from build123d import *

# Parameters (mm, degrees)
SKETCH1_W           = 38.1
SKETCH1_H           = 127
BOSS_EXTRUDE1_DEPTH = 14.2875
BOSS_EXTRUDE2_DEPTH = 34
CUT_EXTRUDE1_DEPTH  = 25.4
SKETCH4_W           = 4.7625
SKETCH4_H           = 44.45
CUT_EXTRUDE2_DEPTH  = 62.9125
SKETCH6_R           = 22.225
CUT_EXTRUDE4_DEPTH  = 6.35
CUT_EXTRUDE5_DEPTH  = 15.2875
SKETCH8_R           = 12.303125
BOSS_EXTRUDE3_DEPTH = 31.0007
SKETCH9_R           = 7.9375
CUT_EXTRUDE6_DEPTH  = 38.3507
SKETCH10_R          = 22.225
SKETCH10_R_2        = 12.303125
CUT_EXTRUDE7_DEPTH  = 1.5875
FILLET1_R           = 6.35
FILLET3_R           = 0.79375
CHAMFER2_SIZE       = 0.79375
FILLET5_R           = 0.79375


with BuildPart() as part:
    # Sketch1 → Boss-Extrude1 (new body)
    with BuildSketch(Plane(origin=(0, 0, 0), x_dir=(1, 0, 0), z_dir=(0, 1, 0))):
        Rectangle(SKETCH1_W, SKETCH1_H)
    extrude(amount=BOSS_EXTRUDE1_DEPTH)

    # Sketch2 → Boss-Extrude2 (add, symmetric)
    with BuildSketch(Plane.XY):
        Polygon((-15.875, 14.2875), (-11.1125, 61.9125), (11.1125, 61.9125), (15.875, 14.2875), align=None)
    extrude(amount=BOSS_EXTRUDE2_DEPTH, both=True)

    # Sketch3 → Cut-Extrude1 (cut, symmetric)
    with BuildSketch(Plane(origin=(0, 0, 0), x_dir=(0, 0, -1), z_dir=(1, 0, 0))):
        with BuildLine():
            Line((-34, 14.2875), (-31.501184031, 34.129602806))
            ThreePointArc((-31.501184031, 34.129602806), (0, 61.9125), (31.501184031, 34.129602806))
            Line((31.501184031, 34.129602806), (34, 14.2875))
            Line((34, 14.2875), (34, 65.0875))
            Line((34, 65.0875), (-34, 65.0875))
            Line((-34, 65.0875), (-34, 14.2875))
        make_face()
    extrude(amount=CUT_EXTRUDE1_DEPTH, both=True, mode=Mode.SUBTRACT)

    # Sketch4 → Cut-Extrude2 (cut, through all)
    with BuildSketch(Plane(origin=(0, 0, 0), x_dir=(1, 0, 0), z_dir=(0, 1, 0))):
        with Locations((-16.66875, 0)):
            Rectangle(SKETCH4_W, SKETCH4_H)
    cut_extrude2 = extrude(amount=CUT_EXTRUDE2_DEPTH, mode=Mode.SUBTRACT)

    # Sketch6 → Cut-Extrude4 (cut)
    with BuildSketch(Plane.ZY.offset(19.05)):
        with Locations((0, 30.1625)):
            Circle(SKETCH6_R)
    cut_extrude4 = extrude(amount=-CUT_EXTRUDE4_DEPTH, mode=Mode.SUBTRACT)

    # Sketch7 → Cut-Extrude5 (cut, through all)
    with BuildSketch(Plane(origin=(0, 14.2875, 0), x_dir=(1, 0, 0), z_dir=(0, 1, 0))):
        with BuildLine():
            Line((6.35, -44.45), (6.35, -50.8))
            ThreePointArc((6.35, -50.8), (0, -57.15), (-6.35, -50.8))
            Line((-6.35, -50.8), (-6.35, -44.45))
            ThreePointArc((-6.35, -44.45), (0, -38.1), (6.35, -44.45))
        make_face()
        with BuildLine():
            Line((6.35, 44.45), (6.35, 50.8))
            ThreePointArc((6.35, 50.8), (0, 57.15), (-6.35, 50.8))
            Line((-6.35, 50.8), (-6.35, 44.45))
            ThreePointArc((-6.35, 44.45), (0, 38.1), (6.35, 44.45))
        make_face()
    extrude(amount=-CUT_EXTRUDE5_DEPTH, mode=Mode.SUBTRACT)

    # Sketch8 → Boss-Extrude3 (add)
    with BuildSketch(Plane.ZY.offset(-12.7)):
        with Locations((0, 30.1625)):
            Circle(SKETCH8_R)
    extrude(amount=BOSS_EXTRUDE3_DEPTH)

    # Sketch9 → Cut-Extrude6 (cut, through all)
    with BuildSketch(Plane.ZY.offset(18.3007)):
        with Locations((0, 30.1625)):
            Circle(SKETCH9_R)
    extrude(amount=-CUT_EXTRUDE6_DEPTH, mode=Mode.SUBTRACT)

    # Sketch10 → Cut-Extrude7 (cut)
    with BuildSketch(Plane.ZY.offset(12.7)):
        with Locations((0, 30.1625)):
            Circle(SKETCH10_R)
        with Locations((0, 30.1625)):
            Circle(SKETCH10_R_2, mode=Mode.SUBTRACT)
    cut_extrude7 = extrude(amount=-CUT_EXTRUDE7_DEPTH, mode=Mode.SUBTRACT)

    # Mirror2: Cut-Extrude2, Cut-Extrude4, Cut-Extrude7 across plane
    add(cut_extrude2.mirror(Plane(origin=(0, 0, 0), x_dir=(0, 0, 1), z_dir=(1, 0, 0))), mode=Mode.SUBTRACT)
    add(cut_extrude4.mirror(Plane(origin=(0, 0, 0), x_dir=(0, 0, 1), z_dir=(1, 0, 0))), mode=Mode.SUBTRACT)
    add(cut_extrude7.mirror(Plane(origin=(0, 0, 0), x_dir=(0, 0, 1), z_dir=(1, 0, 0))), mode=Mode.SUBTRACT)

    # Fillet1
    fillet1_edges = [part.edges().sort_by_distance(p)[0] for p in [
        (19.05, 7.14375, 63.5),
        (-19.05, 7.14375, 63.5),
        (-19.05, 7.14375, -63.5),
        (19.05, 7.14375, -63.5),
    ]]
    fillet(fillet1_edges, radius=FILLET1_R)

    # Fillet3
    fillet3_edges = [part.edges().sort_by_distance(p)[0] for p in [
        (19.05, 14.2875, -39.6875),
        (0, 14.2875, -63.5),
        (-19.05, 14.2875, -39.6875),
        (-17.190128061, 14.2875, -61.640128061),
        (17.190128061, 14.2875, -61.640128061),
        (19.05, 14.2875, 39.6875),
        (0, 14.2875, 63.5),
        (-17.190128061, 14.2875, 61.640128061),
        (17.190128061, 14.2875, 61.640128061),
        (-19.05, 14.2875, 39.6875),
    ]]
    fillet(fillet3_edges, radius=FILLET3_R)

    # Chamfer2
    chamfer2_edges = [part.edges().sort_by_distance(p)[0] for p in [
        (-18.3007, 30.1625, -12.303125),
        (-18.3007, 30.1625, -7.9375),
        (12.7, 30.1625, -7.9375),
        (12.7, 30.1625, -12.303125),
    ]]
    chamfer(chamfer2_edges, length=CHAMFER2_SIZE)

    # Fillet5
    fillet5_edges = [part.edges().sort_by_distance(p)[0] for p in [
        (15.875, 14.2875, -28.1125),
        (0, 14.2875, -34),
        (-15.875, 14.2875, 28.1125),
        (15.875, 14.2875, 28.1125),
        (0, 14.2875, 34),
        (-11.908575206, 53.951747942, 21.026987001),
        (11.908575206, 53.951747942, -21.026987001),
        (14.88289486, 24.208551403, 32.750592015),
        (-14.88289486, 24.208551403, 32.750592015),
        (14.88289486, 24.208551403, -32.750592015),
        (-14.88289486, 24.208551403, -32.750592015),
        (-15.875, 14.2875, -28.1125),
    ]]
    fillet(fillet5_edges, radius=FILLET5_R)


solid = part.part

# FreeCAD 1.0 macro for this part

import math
import FreeCAD as App
import Part
import Sketcher
from FreeCAD import Vector
Q = App.Units.Quantity


def edges_at(feature, points):
    """Names of the edges that pass closest to the given points."""
    edges = feature.Shape.Edges
    near = lambda p: min(range(len(edges)), key=lambda i: edges[i].distToShape(Part.Vertex(*p))[0])
    return sorted({f"Edge{near(p) + 1}" for p in points})

doc = App.newDocument("Part")
body = doc.addObject("PartDesign::Body", "Body")

sketch1 = doc.addObject("Sketcher::SketchObject", "Sketch")
body.addObject(sketch1)
sketch1.AttachmentSupport = (doc.XZ_Plane, [""])
sketch1.MapMode = "FlatFace"
sketch1.addGeometry(Part.LineSegment(Vector(-19.05, -63.5, 0), Vector(-19.05, 63.5, 0)), False)
sketch1.addGeometry(Part.LineSegment(Vector(-19.05, 63.5, 0), Vector(19.05, 63.5, 0)), False)
sketch1.addGeometry(Part.LineSegment(Vector(19.05, 63.5, 0), Vector(19.05, -63.5, 0)), False)
sketch1.addGeometry(Part.LineSegment(Vector(19.05, -63.5, 0), Vector(-19.05, -63.5, 0)), False)
sketch1.addConstraint(Sketcher.Constraint("Coincident", 0, 2, 1, 1))
sketch1.addConstraint(Sketcher.Constraint("Coincident", 1, 2, 2, 1))
sketch1.addConstraint(Sketcher.Constraint("Coincident", 2, 2, 3, 1))
sketch1.addConstraint(Sketcher.Constraint("Coincident", 3, 2, 0, 1))
sketch1.addConstraint(Sketcher.Constraint("Vertical", 0))
sketch1.addConstraint(Sketcher.Constraint("Horizontal", 1))
sketch1.addConstraint(Sketcher.Constraint("Vertical", 2))
sketch1.addConstraint(Sketcher.Constraint("Horizontal", 3))
sketch1.addConstraint(Sketcher.Constraint("Symmetric", 0, 2, 2, 2, -1, 1))
sketch1.addConstraint(Sketcher.Constraint("DistanceY", 0, 1, 0, 2, Q("5 in")))
sketch1.addConstraint(Sketcher.Constraint("DistanceX", 1, 1, 1, 2, Q("1.5 in")))
pad1 = doc.addObject("PartDesign::Pad", "Pad")
body.addObject(pad1)
pad1.Profile = sketch1
pad1.Length = Q("0.5625 in")
pad1.Reversed = True

sketch2 = doc.addObject("Sketcher::SketchObject", "Sketch001")
body.addObject(sketch2)
sketch2.AttachmentSupport = (doc.XY_Plane, [""])
sketch2.MapMode = "FlatFace"
sketch2.addGeometry(Part.LineSegment(Vector(-11.1125, 61.9125, 0), Vector(-15.875, 14.2875, 0)), False)
sketch2.addGeometry(Part.LineSegment(Vector(-15.875, 14.2875, 0), Vector(15.875, 14.2875, 0)), False)
sketch2.addGeometry(Part.LineSegment(Vector(15.875, 14.2875, 0), Vector(11.1125, 61.9125, 0)), False)
sketch2.addGeometry(Part.LineSegment(Vector(11.1125, 61.9125, 0), Vector(-11.1125, 61.9125, 0)), False)
sketch2.addConstraint(Sketcher.Constraint("Coincident", 0, 2, 1, 1))
sketch2.addConstraint(Sketcher.Constraint("Coincident", 1, 2, 2, 1))
sketch2.addConstraint(Sketcher.Constraint("Coincident", 2, 2, 3, 1))
sketch2.addConstraint(Sketcher.Constraint("Coincident", 3, 2, 0, 1))
sketch2.addConstraint(Sketcher.Constraint("Horizontal", 1))
sketch2.addConstraint(Sketcher.Constraint("Horizontal", 3))
sketch2.addConstraint(Sketcher.Constraint("Equal", 0, 2))
sketch2.addConstraint(Sketcher.Constraint("DistanceX", 1, 1, 1, 2, Q("1.25 in")))
sketch2.addConstraint(Sketcher.Constraint("DistanceX", 3, 2, 3, 1, Q("0.875 in")))
sketch2.addConstraint(Sketcher.Constraint("DistanceX", 0, 2, -1, 1, Q("0.625 in")))
sketch2.addConstraint(Sketcher.Constraint("DistanceY", -1, 1, 0, 2, Q("0.5625 in")))
sketch2.addConstraint(Sketcher.Constraint("DistanceY", -1, 1, 2, 2, Q("2.4375 in")))
pad2 = doc.addObject("PartDesign::Pad", "Pad001")
body.addObject(pad2)
pad2.Profile = sketch2
pad2.Length = 68
pad2.Midplane = True

sketch3 = doc.addObject("Sketcher::SketchObject", "Sketch002")
body.addObject(sketch3)
sketch3.AttachmentSupport = (doc.YZ_Plane, [""])
sketch3.MapMode = "FlatFace"
sketch3.addGeometry(Part.LineSegment(Vector(14.2875, 34, 0), Vector(34.129603, 31.501184, 0)), False)
sketch3.addGeometry(Part.ArcOfCircle(Part.Circle(Vector(30.1625, 0, 0), Vector(0, 0, 1), 31.75), math.radians(-82.82224), math.radians(82.82224)), False)
sketch3.addGeometry(Part.LineSegment(Vector(34.129603, -31.501184, 0), Vector(14.2875, -34, 0)), False)
sketch3.addGeometry(Part.LineSegment(Vector(14.2875, -34, 0), Vector(65.0875, -34, 0)), False)
sketch3.addGeometry(Part.LineSegment(Vector(65.0875, -34, 0), Vector(65.0875, 34, 0)), False)
sketch3.addGeometry(Part.LineSegment(Vector(65.0875, 34, 0), Vector(14.2875, 34, 0)), False)
sketch3.addConstraint(Sketcher.Constraint("Tangent", 0, 2, 1, 2))
sketch3.addConstraint(Sketcher.Constraint("Tangent", 1, 1, 2, 1))
sketch3.addConstraint(Sketcher.Constraint("Coincident", 2, 2, 3, 1))
sketch3.addConstraint(Sketcher.Constraint("Coincident", 3, 2, 4, 1))
sketch3.addConstraint(Sketcher.Constraint("Coincident", 4, 2, 5, 1))
sketch3.addConstraint(Sketcher.Constraint("Coincident", 5, 2, 0, 1))
sketch3.addConstraint(Sketcher.Constraint("Horizontal", 3))
sketch3.addConstraint(Sketcher.Constraint("Vertical", 4))
sketch3.addConstraint(Sketcher.Constraint("Horizontal", 5))
sketch3.addConstraint(Sketcher.Constraint("Symmetric", 0, 2, 1, 1, -1))
sketch3.addConstraint(Sketcher.Constraint("Vertical", 2, 2, 5, 2))
sketch3.addConstraint(Sketcher.Constraint("DistanceX", 3, 1, 3, 2, Q("2 in")))
sketch3.addConstraint(Sketcher.Constraint("Radius", 1, Q("1.25 in")))
sketch3.addConstraint(Sketcher.Constraint("DistanceX", -1, 1, 1, 3, Q("1.1875 in")))
sketch3.addConstraint(Sketcher.Constraint("DistanceX", -1, 1, 2, 2, Q("0.5625 in")))
sketch3.addConstraint(Sketcher.Constraint("DistanceY", 4, 1, 4, 2, 68.0))
pocket1 = doc.addObject("PartDesign::Pocket", "Pocket")
body.addObject(pocket1)
pocket1.Profile = sketch3
pocket1.Length = Q("2 in")
pocket1.Midplane = True

sketch4 = doc.addObject("Sketcher::SketchObject", "Sketch003")
body.addObject(sketch4)
sketch4.AttachmentSupport = (doc.XZ_Plane, [""])
sketch4.MapMode = "FlatFace"
sketch4.addGeometry(Part.LineSegment(Vector(-19.05, -22.225, 0), Vector(-19.05, 22.225, 0)), False)
sketch4.addGeometry(Part.LineSegment(Vector(-19.05, 22.225, 0), Vector(-14.2875, 22.225, 0)), False)
sketch4.addGeometry(Part.LineSegment(Vector(-14.2875, 22.225, 0), Vector(-14.2875, -22.225, 0)), False)
sketch4.addGeometry(Part.LineSegment(Vector(-14.2875, -22.225, 0), Vector(-19.05, -22.225, 0)), False)
sketch4.addConstraint(Sketcher.Constraint("Coincident", 0, 2, 1, 1))
sketch4.addConstraint(Sketcher.Constraint("Coincident", 1, 2, 2, 1))
sketch4.addConstraint(Sketcher.Constraint("Coincident", 2, 2, 3, 1))
sketch4.addConstraint(Sketcher.Constraint("Coincident", 3, 2, 0, 1))
sketch4.addConstraint(Sketcher.Constraint("Vertical", 0))
sketch4.addConstraint(Sketcher.Constraint("Horizontal", 1))
sketch4.addConstraint(Sketcher.Constraint("Vertical", 2))
sketch4.addConstraint(Sketcher.Constraint("Horizontal", 3))
sketch4.addConstraint(Sketcher.Constraint("DistanceY", 0, 1, 0, 2, Q("1.75 in")))
sketch4.addConstraint(Sketcher.Constraint("DistanceX", 1, 1, 1, 2, Q("0.1875 in")))
sketch4.addConstraint(Sketcher.Constraint("DistanceX", 0, 2, -1, 1, Q("0.75 in")))
sketch4.addConstraint(Sketcher.Constraint("DistanceY", -1, 1, 0, 2, Q("0.875 in")))
pocket2 = doc.addObject("PartDesign::Pocket", "Pocket001")
body.addObject(pocket2)
pocket2.Profile = sketch4
pocket2.Type = "ThroughAll"

sketch5 = doc.addObject("Sketcher::SketchObject", "Sketch004")
body.addObject(sketch5)
sketch5.AttachmentSupport = (doc.YZ_Plane, [""])
sketch5.MapMode = "FlatFace"
sketch5.AttachmentOffset = App.Placement(Vector(0, 0, -0.75 * 25.4), App.Rotation())
sketch5.addGeometry(Part.Circle(Vector(30.1625, 0, 0), Vector(0, 0, 1), 22.225), False)
sketch5.addConstraint(Sketcher.Constraint("PointOnObject", 0, 3, -1))
sketch5.addConstraint(Sketcher.Constraint("Diameter", 0, Q("1.75 in")))
sketch5.addConstraint(Sketcher.Constraint("DistanceX", -1, 1, 0, 3, Q("1.1875 in")))
pocket3 = doc.addObject("PartDesign::Pocket", "Pocket002")
body.addObject(pocket3)
pocket3.Profile = sketch5
pocket3.Length = Q("0.25 in")
pocket3.Reversed = True

sketch6 = doc.addObject("Sketcher::SketchObject", "Sketch005")
body.addObject(sketch6)
sketch6.AttachmentSupport = (doc.XZ_Plane, [""])
sketch6.MapMode = "FlatFace"
sketch6.AttachmentOffset = App.Placement(Vector(0, 0, -0.5625 * 25.4), App.Rotation())
sketch6.addGeometry(Part.LineSegment(Vector(6.35, 50.8, 0), Vector(6.35, 44.45, 0)), False)
sketch6.addGeometry(Part.ArcOfCircle(Part.Circle(Vector(0, 44.45, 0), Vector(0, 0, 1), 6.35), math.radians(180), math.radians(360)), False)
sketch6.addGeometry(Part.LineSegment(Vector(-6.35, 44.45, 0), Vector(-6.35, 50.8, 0)), False)
sketch6.addGeometry(Part.ArcOfCircle(Part.Circle(Vector(0, 50.8, 0), Vector(0, 0, 1), 6.35), math.radians(0), math.radians(180)), False)
sketch6.addGeometry(Part.LineSegment(Vector(6.35, -44.45, 0), Vector(6.35, -50.8, 0)), False)
sketch6.addGeometry(Part.ArcOfCircle(Part.Circle(Vector(0, -50.8, 0), Vector(0, 0, 1), 6.35), math.radians(180), math.radians(360)), False)
sketch6.addGeometry(Part.LineSegment(Vector(-6.35, -50.8, 0), Vector(-6.35, -44.45, 0)), False)
sketch6.addGeometry(Part.ArcOfCircle(Part.Circle(Vector(0, -44.45, 0), Vector(0, 0, 1), 6.35), math.radians(0), math.radians(180)), False)
sketch6.addConstraint(Sketcher.Constraint("Tangent", 0, 2, 1, 2))
sketch6.addConstraint(Sketcher.Constraint("Tangent", 1, 1, 2, 1))
sketch6.addConstraint(Sketcher.Constraint("Tangent", 2, 2, 3, 2))
sketch6.addConstraint(Sketcher.Constraint("Tangent", 3, 1, 0, 1))
sketch6.addConstraint(Sketcher.Constraint("Tangent", 4, 2, 5, 2))
sketch6.addConstraint(Sketcher.Constraint("Tangent", 5, 1, 6, 1))
sketch6.addConstraint(Sketcher.Constraint("Tangent", 6, 2, 7, 2))
sketch6.addConstraint(Sketcher.Constraint("Tangent", 7, 1, 4, 1))
sketch6.addConstraint(Sketcher.Constraint("Vertical", 0))
sketch6.addConstraint(Sketcher.Constraint("Vertical", 2))
sketch6.addConstraint(Sketcher.Constraint("Vertical", 4))
sketch6.addConstraint(Sketcher.Constraint("Vertical", 6))
sketch6.addConstraint(Sketcher.Constraint("Equal", 3, 5))
sketch6.addConstraint(Sketcher.Constraint("Symmetric", 3, 3, 5, 3, -1, 1))
sketch6.addConstraint(Sketcher.Constraint("Symmetric", 1, 3, 7, 3, -1))
sketch6.addConstraint(Sketcher.Constraint("Radius", 1, Q("0.25 in")))
sketch6.addConstraint(Sketcher.Constraint("DistanceY", -1, 1, 3, 3, Q("2 in")))
sketch6.addConstraint(Sketcher.Constraint("DistanceY", 0, 2, 0, 1, Q("0.25 in")))
pocket4 = doc.addObject("PartDesign::Pocket", "Pocket003")
body.addObject(pocket4)
pocket4.Profile = sketch6
pocket4.Type = "ThroughAll"
pocket4.Reversed = True

sketch7 = doc.addObject("Sketcher::SketchObject", "Sketch006")
body.addObject(sketch7)
sketch7.AttachmentSupport = (doc.YZ_Plane, [""])
sketch7.MapMode = "FlatFace"
sketch7.AttachmentOffset = App.Placement(Vector(0, 0, 0.5 * 25.4), App.Rotation())
sketch7.addGeometry(Part.Circle(Vector(30.1625, 0, 0), Vector(0, 0, 1), 12.303125), False)
sketch7.addConstraint(Sketcher.Constraint("PointOnObject", 0, 3, -1))
sketch7.addConstraint(Sketcher.Constraint("Diameter", 0, Q("0.96875 in")))
sketch7.addConstraint(Sketcher.Constraint("DistanceX", -1, 1, 0, 3, Q("1.1875 in")))
pad3 = doc.addObject("PartDesign::Pad", "Pad002")
body.addObject(pad3)
pad3.Profile = sketch7
pad3.Length = Q("1.2205 in")
pad3.Reversed = True

sketch8 = doc.addObject("Sketcher::SketchObject", "Sketch007")
body.addObject(sketch8)
sketch8.AttachmentSupport = (doc.YZ_Plane, [""])
sketch8.MapMode = "FlatFace"
sketch8.AttachmentOffset = App.Placement(Vector(0, 0, -0.7205 * 25.4), App.Rotation())
sketch8.addGeometry(Part.Circle(Vector(30.1625, 0, 0), Vector(0, 0, 1), 7.9375), False)
sketch8.addConstraint(Sketcher.Constraint("PointOnObject", 0, 3, -1))
sketch8.addConstraint(Sketcher.Constraint("Diameter", 0, Q("0.625 in")))
sketch8.addConstraint(Sketcher.Constraint("DistanceX", -1, 1, 0, 3, Q("1.1875 in")))
pocket5 = doc.addObject("PartDesign::Pocket", "Pocket004")
body.addObject(pocket5)
pocket5.Profile = sketch8
pocket5.Type = "ThroughAll"
pocket5.Reversed = True

sketch9 = doc.addObject("Sketcher::SketchObject", "Sketch008")
body.addObject(sketch9)
sketch9.AttachmentSupport = (doc.YZ_Plane, [""])
sketch9.MapMode = "FlatFace"
sketch9.AttachmentOffset = App.Placement(Vector(0, 0, -0.5 * 25.4), App.Rotation())
sketch9.addGeometry(Part.Circle(Vector(30.1625, 0, 0), Vector(0, 0, 1), 22.225), False)
sketch9.addGeometry(Part.Circle(Vector(30.1625, 0, 0), Vector(0, 0, 1), 12.303125), False)
sketch9.addConstraint(Sketcher.Constraint("Coincident", 1, 3, 0, 3))
sketch9.addConstraint(Sketcher.Constraint("PointOnObject", 0, 3, -1))
sketch9.addConstraint(Sketcher.Constraint("Diameter", 0, Q("1.75 in")))
sketch9.addConstraint(Sketcher.Constraint("Diameter", 1, Q("0.96875 in")))
sketch9.addConstraint(Sketcher.Constraint("DistanceX", -1, 1, 0, 3, Q("1.1875 in")))
pocket6 = doc.addObject("PartDesign::Pocket", "Pocket005")
body.addObject(pocket6)
pocket6.Profile = sketch9
pocket6.Length = Q("0.0625 in")
pocket6.Reversed = True
doc.recompute()

mirrored = doc.addObject("PartDesign::Mirrored", "Mirrored")
body.addObject(mirrored)
mirrored.Originals = [pocket2, pocket3, pocket6]
mirrored.MirrorPlane = (doc.YZ_Plane, [""])
body.Tip = mirrored
doc.recompute()

fillet = doc.addObject("PartDesign::Fillet", "Fillet")
body.addObject(fillet)
fillet.Base = (mirrored, edges_at(mirrored, [
    (19.05, 7.144, 63.5),
    (-19.05, 7.144, 63.5),
    (-19.05, 7.144, -63.5),
    (19.05, 7.144, -63.5),
]))
fillet.Radius = Q("0.25 in")
doc.recompute()

fillet2 = doc.addObject("PartDesign::Fillet", "Fillet001")
body.addObject(fillet2)
fillet2.Base = (fillet, edges_at(fillet, [
    (19.05, 14.287, -39.688),
    (0, 14.287, -63.5),
    (-19.05, 14.287, -39.688),
    (-17.19, 14.287, -61.64),
    (17.19, 14.287, -61.64),
    (19.05, 14.287, 39.688),
    (0, 14.287, 63.5),
    (-17.19, 14.287, 61.64),
    (17.19, 14.287, 61.64),
    (-19.05, 14.287, 39.688),
]))
fillet2.Radius = Q("0.03125 in")
doc.recompute()

chamfer = doc.addObject("PartDesign::Chamfer", "Chamfer")
body.addObject(chamfer)
chamfer.Base = (fillet2, edges_at(fillet2, [
    (-18.301, 30.163, -12.303),
    (-18.301, 30.163, -7.938),
    (12.7, 30.163, -7.938),
    (12.7, 30.163, -12.303),
]))
chamfer.Size = Q("0.03125 in")
doc.recompute()

fillet3 = doc.addObject("PartDesign::Fillet", "Fillet002")
body.addObject(fillet3)
fillet3.Base = (chamfer, edges_at(chamfer, [
    (15.875, 14.287, -28.113),
    (0, 14.287, -34),
    (-15.875, 14.287, 28.113),
    (15.875, 14.287, 28.113),
    (0, 14.287, 34),
    (-11.909, 53.952, 21.027),
    (11.909, 53.952, -21.027),
    (14.883, 24.209, 32.751),
    (-14.883, 24.209, 32.751),
    (14.883, 24.209, -32.751),
    (-14.883, 24.209, -32.751),
    (-15.875, 14.287, -28.113),
]))
fillet3.Radius = Q("0.03125 in")

doc.recompute()
